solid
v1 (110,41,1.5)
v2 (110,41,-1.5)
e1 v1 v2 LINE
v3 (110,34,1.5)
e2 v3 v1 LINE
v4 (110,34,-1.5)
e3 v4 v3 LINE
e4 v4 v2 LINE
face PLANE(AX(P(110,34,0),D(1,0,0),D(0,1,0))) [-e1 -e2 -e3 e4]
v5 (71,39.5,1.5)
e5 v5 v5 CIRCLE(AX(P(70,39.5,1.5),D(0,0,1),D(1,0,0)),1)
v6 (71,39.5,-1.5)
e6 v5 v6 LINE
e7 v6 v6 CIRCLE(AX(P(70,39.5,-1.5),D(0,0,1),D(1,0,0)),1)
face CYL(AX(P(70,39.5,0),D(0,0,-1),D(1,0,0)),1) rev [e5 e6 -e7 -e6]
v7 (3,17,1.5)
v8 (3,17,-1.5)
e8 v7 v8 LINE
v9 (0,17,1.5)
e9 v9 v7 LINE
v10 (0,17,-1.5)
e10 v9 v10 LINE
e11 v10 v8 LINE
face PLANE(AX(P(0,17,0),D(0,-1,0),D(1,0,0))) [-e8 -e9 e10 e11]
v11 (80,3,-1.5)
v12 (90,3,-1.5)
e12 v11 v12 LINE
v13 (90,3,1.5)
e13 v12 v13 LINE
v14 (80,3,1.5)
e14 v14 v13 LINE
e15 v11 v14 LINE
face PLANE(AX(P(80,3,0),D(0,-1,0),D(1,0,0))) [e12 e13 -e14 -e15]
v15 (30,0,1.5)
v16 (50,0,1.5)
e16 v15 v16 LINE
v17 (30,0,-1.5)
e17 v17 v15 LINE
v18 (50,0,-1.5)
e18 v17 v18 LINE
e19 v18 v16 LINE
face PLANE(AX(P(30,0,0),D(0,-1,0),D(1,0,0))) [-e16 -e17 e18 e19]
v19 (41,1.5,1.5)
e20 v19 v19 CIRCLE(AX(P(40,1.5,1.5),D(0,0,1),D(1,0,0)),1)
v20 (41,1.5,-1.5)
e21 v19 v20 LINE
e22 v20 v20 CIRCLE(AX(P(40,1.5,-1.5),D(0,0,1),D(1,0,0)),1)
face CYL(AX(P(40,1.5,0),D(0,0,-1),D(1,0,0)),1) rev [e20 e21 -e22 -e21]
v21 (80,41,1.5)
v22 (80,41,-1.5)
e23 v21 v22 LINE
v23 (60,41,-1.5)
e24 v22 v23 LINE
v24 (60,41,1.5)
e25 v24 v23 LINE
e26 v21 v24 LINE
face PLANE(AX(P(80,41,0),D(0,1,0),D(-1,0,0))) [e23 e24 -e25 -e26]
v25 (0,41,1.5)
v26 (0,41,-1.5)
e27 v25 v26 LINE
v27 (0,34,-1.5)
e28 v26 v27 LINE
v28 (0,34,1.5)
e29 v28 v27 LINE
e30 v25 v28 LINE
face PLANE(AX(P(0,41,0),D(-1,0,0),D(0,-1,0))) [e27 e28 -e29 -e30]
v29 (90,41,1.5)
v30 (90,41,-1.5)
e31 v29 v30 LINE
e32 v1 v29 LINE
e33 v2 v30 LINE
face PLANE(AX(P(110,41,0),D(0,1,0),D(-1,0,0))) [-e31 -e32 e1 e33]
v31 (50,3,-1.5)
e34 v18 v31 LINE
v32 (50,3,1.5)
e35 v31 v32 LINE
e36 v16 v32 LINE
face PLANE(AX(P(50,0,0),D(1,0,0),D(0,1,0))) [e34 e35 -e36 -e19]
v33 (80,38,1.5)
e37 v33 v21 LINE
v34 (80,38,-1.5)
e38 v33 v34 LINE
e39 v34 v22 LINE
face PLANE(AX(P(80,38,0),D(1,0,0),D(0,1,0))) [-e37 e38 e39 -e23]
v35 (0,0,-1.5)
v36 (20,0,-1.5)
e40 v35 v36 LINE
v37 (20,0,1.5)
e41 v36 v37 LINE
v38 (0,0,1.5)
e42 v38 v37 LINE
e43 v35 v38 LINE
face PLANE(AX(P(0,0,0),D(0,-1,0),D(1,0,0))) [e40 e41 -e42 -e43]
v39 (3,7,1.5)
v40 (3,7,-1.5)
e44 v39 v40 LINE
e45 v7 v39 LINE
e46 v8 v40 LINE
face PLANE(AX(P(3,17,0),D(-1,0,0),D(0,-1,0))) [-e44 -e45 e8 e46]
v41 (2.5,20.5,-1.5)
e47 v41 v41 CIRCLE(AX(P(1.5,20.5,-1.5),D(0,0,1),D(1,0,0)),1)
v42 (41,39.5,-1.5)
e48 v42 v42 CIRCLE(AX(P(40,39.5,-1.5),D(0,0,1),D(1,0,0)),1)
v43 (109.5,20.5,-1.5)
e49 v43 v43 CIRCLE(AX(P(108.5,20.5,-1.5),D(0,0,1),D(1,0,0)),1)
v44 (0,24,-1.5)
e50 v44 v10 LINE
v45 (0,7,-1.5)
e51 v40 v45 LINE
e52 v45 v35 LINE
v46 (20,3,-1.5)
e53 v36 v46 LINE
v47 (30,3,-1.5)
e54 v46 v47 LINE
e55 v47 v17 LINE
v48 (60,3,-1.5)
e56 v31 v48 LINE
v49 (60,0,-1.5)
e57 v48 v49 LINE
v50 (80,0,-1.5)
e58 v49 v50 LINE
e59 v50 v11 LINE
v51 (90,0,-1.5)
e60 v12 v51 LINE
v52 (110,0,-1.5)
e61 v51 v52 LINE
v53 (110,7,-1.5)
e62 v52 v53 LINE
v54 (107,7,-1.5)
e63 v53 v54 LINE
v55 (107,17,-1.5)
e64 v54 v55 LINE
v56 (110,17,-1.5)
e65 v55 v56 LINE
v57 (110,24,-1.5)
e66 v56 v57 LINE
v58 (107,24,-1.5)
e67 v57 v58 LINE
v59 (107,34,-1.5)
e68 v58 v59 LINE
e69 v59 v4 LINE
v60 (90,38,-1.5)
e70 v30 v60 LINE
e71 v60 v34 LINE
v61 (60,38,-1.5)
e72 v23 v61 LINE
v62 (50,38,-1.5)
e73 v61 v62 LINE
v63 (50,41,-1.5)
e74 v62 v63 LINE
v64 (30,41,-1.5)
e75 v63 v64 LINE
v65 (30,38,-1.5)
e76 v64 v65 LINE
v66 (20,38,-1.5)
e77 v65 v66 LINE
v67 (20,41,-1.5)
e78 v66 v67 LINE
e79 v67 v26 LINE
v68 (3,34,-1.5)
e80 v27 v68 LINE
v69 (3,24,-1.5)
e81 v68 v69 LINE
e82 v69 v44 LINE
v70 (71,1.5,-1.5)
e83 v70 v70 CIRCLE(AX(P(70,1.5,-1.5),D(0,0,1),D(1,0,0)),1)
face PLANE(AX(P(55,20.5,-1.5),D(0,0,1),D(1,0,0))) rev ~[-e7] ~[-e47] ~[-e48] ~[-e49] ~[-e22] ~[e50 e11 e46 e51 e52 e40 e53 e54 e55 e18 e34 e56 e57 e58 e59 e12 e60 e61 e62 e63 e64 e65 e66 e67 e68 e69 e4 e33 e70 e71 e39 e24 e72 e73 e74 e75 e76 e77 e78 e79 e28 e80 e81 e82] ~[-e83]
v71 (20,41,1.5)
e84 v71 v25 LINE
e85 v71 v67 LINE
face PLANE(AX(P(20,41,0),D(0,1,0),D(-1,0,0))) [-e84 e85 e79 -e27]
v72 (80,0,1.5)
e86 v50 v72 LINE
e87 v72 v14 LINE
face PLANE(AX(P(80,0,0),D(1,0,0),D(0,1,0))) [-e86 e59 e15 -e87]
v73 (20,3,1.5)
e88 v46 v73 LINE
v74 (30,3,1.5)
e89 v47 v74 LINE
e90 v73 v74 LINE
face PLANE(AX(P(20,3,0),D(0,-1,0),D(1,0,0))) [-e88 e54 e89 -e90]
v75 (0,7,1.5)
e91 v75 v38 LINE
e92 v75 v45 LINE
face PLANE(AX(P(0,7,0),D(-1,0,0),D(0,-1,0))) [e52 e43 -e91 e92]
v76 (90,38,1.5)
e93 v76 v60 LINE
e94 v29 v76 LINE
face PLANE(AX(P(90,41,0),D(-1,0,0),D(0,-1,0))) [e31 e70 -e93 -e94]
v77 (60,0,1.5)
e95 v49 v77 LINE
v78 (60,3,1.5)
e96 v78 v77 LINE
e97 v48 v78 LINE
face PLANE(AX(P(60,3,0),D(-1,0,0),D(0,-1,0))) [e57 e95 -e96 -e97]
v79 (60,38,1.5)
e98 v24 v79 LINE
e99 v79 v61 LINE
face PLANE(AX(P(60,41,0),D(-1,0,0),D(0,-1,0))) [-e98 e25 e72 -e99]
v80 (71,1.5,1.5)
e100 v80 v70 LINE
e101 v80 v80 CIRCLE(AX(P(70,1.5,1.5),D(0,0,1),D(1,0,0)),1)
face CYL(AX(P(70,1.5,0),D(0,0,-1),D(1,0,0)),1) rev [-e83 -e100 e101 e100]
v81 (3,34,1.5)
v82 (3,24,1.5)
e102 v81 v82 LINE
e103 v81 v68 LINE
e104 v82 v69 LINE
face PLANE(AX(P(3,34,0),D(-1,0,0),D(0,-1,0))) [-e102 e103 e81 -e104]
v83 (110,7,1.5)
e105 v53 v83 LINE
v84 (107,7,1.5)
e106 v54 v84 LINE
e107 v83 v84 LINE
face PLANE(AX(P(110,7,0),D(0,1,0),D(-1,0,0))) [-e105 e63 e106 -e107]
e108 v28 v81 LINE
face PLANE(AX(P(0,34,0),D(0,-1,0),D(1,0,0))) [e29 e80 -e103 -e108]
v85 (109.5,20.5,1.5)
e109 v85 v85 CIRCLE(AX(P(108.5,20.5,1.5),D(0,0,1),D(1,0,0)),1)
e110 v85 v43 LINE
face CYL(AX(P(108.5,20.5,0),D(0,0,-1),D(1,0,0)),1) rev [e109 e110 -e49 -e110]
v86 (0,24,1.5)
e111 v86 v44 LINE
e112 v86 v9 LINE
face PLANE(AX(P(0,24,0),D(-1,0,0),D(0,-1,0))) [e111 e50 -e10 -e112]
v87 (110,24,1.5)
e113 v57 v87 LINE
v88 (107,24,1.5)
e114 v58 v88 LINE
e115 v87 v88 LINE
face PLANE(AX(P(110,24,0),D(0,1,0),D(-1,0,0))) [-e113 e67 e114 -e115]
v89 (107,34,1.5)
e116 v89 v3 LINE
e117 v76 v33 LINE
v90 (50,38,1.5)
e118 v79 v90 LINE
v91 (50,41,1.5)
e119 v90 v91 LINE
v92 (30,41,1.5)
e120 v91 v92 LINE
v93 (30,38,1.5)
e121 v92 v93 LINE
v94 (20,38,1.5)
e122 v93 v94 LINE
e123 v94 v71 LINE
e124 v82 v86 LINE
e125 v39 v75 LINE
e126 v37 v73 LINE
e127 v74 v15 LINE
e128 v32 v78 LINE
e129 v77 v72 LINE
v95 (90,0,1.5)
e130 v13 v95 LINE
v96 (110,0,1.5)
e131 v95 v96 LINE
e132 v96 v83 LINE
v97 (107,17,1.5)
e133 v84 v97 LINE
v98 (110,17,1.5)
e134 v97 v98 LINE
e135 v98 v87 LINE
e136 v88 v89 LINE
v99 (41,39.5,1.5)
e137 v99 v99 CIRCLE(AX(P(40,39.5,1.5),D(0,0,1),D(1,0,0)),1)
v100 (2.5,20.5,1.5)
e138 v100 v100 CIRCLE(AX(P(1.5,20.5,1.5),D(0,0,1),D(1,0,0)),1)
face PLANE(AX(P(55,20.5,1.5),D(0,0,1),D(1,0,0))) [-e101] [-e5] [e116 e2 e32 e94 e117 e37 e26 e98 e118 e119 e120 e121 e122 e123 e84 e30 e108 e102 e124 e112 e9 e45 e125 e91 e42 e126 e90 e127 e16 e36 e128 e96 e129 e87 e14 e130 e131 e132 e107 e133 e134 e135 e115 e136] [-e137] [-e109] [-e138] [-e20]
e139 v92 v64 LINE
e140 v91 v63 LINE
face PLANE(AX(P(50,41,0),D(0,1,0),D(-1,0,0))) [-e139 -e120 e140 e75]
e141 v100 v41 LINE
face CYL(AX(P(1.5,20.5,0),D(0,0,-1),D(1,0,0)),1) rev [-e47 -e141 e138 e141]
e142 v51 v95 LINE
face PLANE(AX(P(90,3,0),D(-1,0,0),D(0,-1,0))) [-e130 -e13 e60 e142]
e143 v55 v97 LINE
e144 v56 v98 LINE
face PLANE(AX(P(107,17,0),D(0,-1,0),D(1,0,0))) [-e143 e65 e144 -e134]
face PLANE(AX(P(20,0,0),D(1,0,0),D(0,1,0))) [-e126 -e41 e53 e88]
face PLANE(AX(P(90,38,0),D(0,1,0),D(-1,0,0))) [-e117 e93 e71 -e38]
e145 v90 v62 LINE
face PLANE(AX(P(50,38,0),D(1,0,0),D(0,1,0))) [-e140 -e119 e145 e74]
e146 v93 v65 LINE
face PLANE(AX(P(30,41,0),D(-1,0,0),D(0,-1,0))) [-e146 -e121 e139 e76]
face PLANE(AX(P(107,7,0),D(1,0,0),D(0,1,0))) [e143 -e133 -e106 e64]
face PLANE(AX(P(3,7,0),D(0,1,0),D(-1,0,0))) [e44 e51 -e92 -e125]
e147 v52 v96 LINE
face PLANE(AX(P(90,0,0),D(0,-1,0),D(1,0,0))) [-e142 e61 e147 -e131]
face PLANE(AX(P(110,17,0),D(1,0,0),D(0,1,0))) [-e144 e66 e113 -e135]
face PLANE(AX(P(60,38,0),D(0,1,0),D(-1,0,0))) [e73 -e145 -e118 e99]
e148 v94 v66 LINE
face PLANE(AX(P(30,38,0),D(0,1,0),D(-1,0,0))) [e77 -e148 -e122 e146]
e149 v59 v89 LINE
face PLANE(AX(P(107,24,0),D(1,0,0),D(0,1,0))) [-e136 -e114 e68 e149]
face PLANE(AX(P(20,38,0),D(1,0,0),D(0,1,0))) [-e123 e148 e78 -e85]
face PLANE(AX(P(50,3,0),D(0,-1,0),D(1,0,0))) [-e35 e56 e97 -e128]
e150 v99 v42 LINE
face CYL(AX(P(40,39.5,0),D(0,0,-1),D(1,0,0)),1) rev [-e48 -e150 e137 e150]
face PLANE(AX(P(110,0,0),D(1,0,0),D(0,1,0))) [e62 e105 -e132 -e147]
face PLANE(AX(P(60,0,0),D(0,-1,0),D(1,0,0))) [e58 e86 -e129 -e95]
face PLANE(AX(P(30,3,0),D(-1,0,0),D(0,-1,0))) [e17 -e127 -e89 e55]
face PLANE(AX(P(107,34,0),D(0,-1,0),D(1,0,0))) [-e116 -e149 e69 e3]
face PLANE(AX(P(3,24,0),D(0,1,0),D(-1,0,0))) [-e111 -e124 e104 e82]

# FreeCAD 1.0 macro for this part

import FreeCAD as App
import Part
import Sketcher
from FreeCAD import Vector


def add_polygon(sketch, points):
    """Adds a closed chain of lines whose ends are joined by coincident constraints."""
    first, n = sketch.GeometryCount, len(points)
    for a, b in zip(points, points[1:] + points[:1]):
        sketch.addGeometry(Part.LineSegment(App.Vector(*a, 0), App.Vector(*b, 0)), False)
    for i in range(n):
        sketch.addConstraint(Sketcher.Constraint("Coincident", first + i, 2, first + (i + 1) % n, 1))

doc = App.newDocument("Part")
body = doc.addObject("PartDesign::Body", "Body")

sketch1 = doc.addObject("Sketcher::SketchObject", "Sketch")
body.addObject(sketch1)
sketch1.AttachmentSupport = (doc.XY_Plane, [""])
sketch1.MapMode = "FlatFace"
add_polygon(sketch1, [(0, 7), (0, 0), (20, 0), (20, 3), (30, 3), (30, 0), (50, 0), (50, 3), (60, 3), (60, 0), (80, 0), (80, 3), (90, 3), (90, 0), (110, 0), (110, 7), (107, 7), (107, 17), (110, 17), (110, 24), (107, 24), (107, 34), (110, 34), (110, 41), (90, 41), (90, 38), (80, 38), (80, 41), (60, 41), (60, 38), (50, 38), (50, 41), (30, 41), (30, 38), (20, 38), (20, 41), (0, 41), (0, 34), (3, 34), (3, 24), (0, 24), (0, 17), (3, 17), (3, 7)])
sketch1.addGeometry(Part.Circle(Vector(40, 1.5, 0), Vector(0, 0, 1), 1), False)
sketch1.addGeometry(Part.Circle(Vector(70, 1.5, 0), Vector(0, 0, 1), 1), False)
sketch1.addGeometry(Part.Circle(Vector(1.5, 20.5, 0), Vector(0, 0, 1), 1), False)
sketch1.addGeometry(Part.Circle(Vector(40, 39.5, 0), Vector(0, 0, 1), 1), False)
sketch1.addGeometry(Part.Circle(Vector(108.5, 20.5, 0), Vector(0, 0, 1), 1), False)
sketch1.addGeometry(Part.Circle(Vector(70, 39.5, 0), Vector(0, 0, 1), 1), False)
sketch1.addConstraint([
    Sketcher.Constraint("Vertical", 0),
    Sketcher.Constraint("Horizontal", 1),
    Sketcher.Constraint("Vertical", 2),
    Sketcher.Constraint("Horizontal", 3),
    Sketcher.Constraint("Vertical", 4),
    Sketcher.Constraint("Horizontal", 5),
    Sketcher.Constraint("Vertical", 6),
    Sketcher.Constraint("Horizontal", 7),
    Sketcher.Constraint("Vertical", 8),
    Sketcher.Constraint("Horizontal", 9),
    Sketcher.Constraint("Vertical", 10),
    Sketcher.Constraint("Horizontal", 11),
    Sketcher.Constraint("Vertical", 12),
    Sketcher.Constraint("Horizontal", 13),
    Sketcher.Constraint("Vertical", 14),
    Sketcher.Constraint("Horizontal", 15),
    Sketcher.Constraint("Vertical", 16),
    Sketcher.Constraint("Horizontal", 17),
    Sketcher.Constraint("Vertical", 18),
    Sketcher.Constraint("Horizontal", 19),
    Sketcher.Constraint("Vertical", 20),
    Sketcher.Constraint("Horizontal", 21),
    Sketcher.Constraint("Vertical", 22),
    Sketcher.Constraint("Horizontal", 23),
    Sketcher.Constraint("Vertical", 24),
    Sketcher.Constraint("Horizontal", 25),
    Sketcher.Constraint("Vertical", 26),
    Sketcher.Constraint("Horizontal", 27),
    Sketcher.Constraint("Vertical", 28),
    Sketcher.Constraint("Horizontal", 29),
    Sketcher.Constraint("Vertical", 30),
    Sketcher.Constraint("Horizontal", 31),
    Sketcher.Constraint("Vertical", 32),
    Sketcher.Constraint("Horizontal", 33),
    Sketcher.Constraint("Vertical", 34),
    Sketcher.Constraint("Horizontal", 35),
    Sketcher.Constraint("Vertical", 36),
    Sketcher.Constraint("Horizontal", 37),
    Sketcher.Constraint("Vertical", 38),
    Sketcher.Constraint("Horizontal", 39),
    Sketcher.Constraint("Vertical", 40),
    Sketcher.Constraint("Horizontal", 41),
    Sketcher.Constraint("Vertical", 42),
    Sketcher.Constraint("Horizontal", 43),
    Sketcher.Constraint("Coincident", 0, 2, -1, 1),
    Sketcher.Constraint("Equal", 44, 45),
    Sketcher.Constraint("Equal", 45, 46),
    Sketcher.Constraint("Equal", 46, 47),
    Sketcher.Constraint("Equal", 47, 48),
    Sketcher.Constraint("Equal", 48, 49),
    Sketcher.Constraint("PointOnObject", 4, 2, -1),
    Sketcher.Constraint("PointOnObject", 8, 2, -1),
    Sketcher.Constraint("PointOnObject", 12, 2, -1),
    Sketcher.Constraint("PointOnObject", 35, 2, -2),
    Sketcher.Constraint("PointOnObject", 39, 2, -2),
    Sketcher.Constraint("Horizontal", 44, 3, 45, 3),
    Sketcher.Constraint("Horizontal", 46, 3, 48, 3),
    Sketcher.Constraint("Horizontal", 47, 3, 49, 3),
    Sketcher.Constraint("Horizontal", 3, 2, 6, 2),
    Sketcher.Constraint("Horizontal", 7, 2, 10, 2),
    Sketcher.Constraint("Horizontal", 23, 2, 26, 2),
    Sketcher.Constraint("Horizontal", 25, 2, 28, 2),
    Sketcher.Constraint("Horizontal", 27, 2, 30, 2),
    Sketcher.Constraint("Horizontal", 29, 2, 32, 2),
    Sketcher.Constraint("Horizontal", 31, 2, 34, 2),
    Sketcher.Constraint("Horizontal", 21, 2, 36, 2),
    Sketcher.Constraint("Horizontal", 19, 2, 38, 2),
    Sketcher.Constraint("Horizontal", 17, 2, 40, 2),
    Sketcher.Constraint("Horizontal", 15, 2, 42, 2),
    Sketcher.Constraint("Vertical", 44, 3, 47, 3),
    Sketcher.Constraint("Vertical", 45, 3, 49, 3),
    Sketcher.Constraint("Vertical", 14, 2, 17, 2),
    Sketcher.Constraint("Vertical", 16, 2, 19, 2),
    Sketcher.Constraint("Vertical", 18, 2, 21, 2),
    Sketcher.Constraint("Vertical", 12, 2, 23, 2),
    Sketcher.Constraint("Vertical", 10, 2, 25, 2),
    Sketcher.Constraint("Vertical", 8, 2, 27, 2),
    Sketcher.Constraint("Vertical", 6, 2, 29, 2),
    Sketcher.Constraint("Vertical", 4, 2, 31, 2),
    Sketcher.Constraint("Vertical", 2, 2, 33, 2),
    Sketcher.Constraint("Vertical", 38, 2, 41, 2),
    Sketcher.Constraint("Equal", 1, 5),
    Sketcher.Constraint("Equal", 3, 7),
    Sketcher.Constraint("Equal", 5, 9),
    Sketcher.Constraint("Equal", 7, 11),
    Sketcher.Constraint("Equal", 9, 13),
    Sketcher.Constraint("Equal", 21, 37),
    Sketcher.Constraint("Equal", 43, 2),
    Sketcher.Constraint("Equal", 33, 16),
    Sketcher.Constraint("Equal", 14, 18),
    Sketcher.Constraint("Equal", 16, 20),
    Sketcher.Constraint("Equal", 18, 22),
    Sketcher.Constraint("Equal", 12, 24),
    Sketcher.Constraint("Diameter", 44, 2.0),
    Sketcher.Constraint("DistanceX", 1, 1, 1, 2, 20.0),
    Sketcher.Constraint("DistanceX", 3, 1, 3, 2, 10.0),
    Sketcher.Constraint("DistanceX", 15, 2, 15, 1, 3.0),
    Sketcher.Constraint("DistanceY", 0, 2, 0, 1, 7.0),
    Sketcher.Constraint("DistanceX", -1, 1, 44, 3, 40.0),
    Sketcher.Constraint("DistanceX", -1, 1, 45, 3, 70.0),
    Sketcher.Constraint("DistanceY", 44, 3, 46, 3, 19.0),
    Sketcher.Constraint("DistanceY", 44, 3, 47, 3, 38.0),
    Sketcher.Constraint("DistanceX", 46, 3, 48, 3, 107.0),
    Sketcher.Constraint("DistanceY", -1, 1, 44, 3, 1.5),
    Sketcher.Constraint("DistanceX", -1, 1, 46, 3, 1.5),
])
pad1 = doc.addObject("PartDesign::Pad", "Pad")
body.addObject(pad1)
pad1.Profile = sketch1
pad1.Length = 3
pad1.Midplane = True

doc.recompute()
